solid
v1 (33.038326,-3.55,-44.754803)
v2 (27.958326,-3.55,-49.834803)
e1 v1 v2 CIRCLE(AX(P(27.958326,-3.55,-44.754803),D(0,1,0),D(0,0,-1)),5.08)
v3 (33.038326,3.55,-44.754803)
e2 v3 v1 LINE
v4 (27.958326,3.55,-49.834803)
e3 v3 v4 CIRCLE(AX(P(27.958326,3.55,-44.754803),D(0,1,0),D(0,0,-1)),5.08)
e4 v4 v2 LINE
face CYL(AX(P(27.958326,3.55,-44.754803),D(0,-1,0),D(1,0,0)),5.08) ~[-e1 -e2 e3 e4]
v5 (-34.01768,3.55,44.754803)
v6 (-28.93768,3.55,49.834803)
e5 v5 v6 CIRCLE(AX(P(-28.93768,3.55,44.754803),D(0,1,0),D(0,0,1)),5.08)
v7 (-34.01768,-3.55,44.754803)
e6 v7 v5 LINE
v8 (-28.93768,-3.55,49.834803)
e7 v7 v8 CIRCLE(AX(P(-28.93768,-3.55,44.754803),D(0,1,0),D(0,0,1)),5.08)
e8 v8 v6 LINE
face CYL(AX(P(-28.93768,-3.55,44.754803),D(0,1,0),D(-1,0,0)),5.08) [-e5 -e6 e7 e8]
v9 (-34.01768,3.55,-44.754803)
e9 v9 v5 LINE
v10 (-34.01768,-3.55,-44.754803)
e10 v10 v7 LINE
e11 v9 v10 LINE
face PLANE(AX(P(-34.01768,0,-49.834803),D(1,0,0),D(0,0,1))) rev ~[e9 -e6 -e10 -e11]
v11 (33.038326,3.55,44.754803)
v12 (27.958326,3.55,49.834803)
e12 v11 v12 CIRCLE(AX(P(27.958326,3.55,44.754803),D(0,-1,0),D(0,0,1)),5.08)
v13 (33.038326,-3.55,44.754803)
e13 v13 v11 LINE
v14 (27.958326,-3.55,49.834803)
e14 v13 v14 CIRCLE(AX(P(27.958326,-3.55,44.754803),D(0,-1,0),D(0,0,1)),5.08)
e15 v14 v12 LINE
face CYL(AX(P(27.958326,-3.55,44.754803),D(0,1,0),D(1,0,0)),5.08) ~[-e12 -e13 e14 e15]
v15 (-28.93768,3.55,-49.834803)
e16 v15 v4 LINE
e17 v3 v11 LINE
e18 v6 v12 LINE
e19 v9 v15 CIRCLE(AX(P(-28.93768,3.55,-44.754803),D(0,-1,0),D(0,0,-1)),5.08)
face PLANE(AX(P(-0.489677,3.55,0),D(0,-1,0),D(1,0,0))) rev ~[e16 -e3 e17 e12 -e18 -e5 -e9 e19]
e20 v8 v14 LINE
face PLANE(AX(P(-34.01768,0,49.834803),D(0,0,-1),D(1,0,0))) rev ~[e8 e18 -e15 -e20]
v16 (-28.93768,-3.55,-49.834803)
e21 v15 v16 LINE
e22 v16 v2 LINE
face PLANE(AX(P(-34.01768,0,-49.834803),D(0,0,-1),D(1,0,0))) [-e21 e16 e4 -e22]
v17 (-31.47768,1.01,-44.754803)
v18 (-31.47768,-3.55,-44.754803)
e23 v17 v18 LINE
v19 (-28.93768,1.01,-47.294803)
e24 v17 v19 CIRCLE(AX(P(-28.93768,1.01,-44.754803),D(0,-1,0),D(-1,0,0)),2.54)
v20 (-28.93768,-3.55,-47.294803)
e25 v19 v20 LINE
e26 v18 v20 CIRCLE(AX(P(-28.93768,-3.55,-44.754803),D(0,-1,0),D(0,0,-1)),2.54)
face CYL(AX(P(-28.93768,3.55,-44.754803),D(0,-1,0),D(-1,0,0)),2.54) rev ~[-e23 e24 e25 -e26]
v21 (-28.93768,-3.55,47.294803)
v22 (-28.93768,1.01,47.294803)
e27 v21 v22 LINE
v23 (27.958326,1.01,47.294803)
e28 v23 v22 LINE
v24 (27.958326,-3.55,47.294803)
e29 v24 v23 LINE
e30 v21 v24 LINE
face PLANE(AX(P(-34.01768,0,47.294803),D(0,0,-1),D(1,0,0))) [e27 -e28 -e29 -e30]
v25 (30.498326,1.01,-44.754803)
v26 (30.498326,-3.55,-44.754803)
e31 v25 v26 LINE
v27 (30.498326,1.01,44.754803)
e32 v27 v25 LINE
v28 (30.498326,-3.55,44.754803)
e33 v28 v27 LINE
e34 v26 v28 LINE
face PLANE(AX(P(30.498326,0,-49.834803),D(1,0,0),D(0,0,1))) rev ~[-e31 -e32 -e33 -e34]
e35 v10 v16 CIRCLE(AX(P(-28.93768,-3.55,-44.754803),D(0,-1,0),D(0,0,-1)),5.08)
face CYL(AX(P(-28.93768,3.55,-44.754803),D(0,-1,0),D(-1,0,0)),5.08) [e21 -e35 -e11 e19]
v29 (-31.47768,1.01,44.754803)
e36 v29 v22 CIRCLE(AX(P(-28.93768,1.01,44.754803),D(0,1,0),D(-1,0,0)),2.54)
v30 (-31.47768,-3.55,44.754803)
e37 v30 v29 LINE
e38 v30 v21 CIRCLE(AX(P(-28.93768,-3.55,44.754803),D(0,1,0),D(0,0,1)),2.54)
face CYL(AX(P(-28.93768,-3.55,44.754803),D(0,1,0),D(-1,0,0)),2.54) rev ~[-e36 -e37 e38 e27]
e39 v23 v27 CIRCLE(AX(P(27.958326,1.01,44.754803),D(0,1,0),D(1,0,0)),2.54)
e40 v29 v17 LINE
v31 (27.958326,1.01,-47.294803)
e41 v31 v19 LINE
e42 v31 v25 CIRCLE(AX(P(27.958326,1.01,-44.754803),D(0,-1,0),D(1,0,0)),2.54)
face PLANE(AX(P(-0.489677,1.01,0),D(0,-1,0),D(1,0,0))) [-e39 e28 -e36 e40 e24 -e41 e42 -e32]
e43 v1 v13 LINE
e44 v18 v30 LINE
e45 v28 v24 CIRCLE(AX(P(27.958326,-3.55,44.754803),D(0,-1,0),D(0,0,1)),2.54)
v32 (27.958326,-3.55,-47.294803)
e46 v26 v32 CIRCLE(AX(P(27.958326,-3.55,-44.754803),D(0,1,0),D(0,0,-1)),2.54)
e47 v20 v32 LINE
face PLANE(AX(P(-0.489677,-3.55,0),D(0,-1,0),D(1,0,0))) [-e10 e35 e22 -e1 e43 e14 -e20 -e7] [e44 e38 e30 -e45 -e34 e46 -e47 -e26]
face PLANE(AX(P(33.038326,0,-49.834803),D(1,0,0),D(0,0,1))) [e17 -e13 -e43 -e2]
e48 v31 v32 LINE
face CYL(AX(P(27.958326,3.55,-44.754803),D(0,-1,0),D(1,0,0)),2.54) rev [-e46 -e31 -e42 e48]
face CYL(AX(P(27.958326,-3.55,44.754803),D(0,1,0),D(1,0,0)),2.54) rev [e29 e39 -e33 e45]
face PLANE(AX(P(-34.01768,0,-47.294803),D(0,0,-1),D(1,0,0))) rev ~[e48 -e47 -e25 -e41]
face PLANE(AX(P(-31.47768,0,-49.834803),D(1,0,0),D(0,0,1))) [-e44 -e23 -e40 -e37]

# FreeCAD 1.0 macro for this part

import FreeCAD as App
import Part
import Sketcher

V = App.Vector
Q = App.Units.Quantity


def edges_at(feature, points):
    """Names of the edges that pass closest to the given points."""
    edges = feature.Shape.Edges
    near = lambda p: min(range(len(edges)), key=lambda i: edges[i].distToShape(Part.Vertex(*p))[0])
    return sorted({f"Edge{near(p) + 1}" for p in points})


def faces_at(feature, points):
    """Names of the faces that lie closest to the given points."""
    faces = feature.Shape.Faces
    near = lambda p: min(range(len(faces)), key=lambda i: faces[i].distToShape(Part.Vertex(*p))[0])
    return sorted({f"Face{near(p) + 1}" for p in points})


def add_polygon(sketch, points):
    """Adds a closed chain of lines whose ends are joined by coincident constraints."""
    first, n = sketch.GeometryCount, len(points)
    for a, b in zip(points, points[1:] + points[:1]):
        sketch.addGeometry(Part.LineSegment(App.Vector(*a, 0), App.Vector(*b, 0)), False)
    for i in range(n):
        sketch.addConstraint(Sketcher.Constraint("Coincident", first + i, 2, first + (i + 1) % n, 1))

doc = App.newDocument("Part")
params = doc.addObject("Spreadsheet::Sheet", "Params")
for row, (alias, value) in enumerate([
    ("pad1_length", "7.1 mm"),
    ("fillet_radius", "0.2 in"),
    ("thickness_wall", "0.1 in"),
], start=1):
    params.set(f"A{row}", alias)
    params.set(f"B{row}", "=" + value)
    params.setAlias(f"B{row}", alias)

body = doc.addObject("PartDesign::Body", "Body")

# Sketch on XZ plane
sketch1 = doc.addObject("Sketcher::SketchObject", "Sketch")
body.addObject(sketch1)
sketch1.AttachmentSupport = (doc.XZ_Plane, [""])
sketch1.MapMode = "FlatFace"
add_polygon(sketch1, [(-34.01768, 49.834803), (-34.01768, -49.834803), (33.038326, -49.834803), (33.038326, 49.834803)])  # lines 0-3
sketch1.addConstraint(Sketcher.Constraint("Vertical", 0))
sketch1.addConstraint(Sketcher.Constraint("Horizontal", 1))
sketch1.addConstraint(Sketcher.Constraint("Vertical", 2))
sketch1.addConstraint(Sketcher.Constraint("Horizontal", 3))
sketch1.addConstraint(Sketcher.Constraint("DistanceY", 0, 2, -1, 1, Q("1.9620001 in")))
sketch1.addConstraint(Sketcher.Constraint("DistanceY", -1, 1, 2, 2, Q("1.9620001 in")))
sketch1.addConstraint(Sketcher.Constraint("DistanceX", 1, 1, 1, 2, Q("67.056006 mm")))
sketch1.addConstraint(Sketcher.Constraint("DistanceX", 0, 2, -1, 1, Q("34.01768 mm")))
pad1 = doc.addObject("PartDesign::Pad", "Pad")
body.addObject(pad1)
pad1.Profile = sketch1
pad1.setExpression("Length", "Params.pad1_length")
pad1.Midplane = True
doc.recompute()

fillet = doc.addObject("PartDesign::Fillet", "Fillet")
body.addObject(fillet)
fillet.Base = (pad1, edges_at(pad1, [
    (-34.018, 0, -49.835),
    (-34.018, 0, 49.835),
    (33.038, 0, -49.835),
    (33.038, 0, 49.835),
]))
fillet.setExpression("Radius", "Params.fillet_radius")
doc.recompute()

thickness = doc.addObject("PartDesign::Thickness", "Thickness")
body.addObject(thickness)
thickness.Base = (fillet, faces_at(fillet, [(-0.49, -3.55, 0)]))
thickness.setExpression("Value", "Params.thickness_wall")
thickness.Reversed = True
thickness.Join = "Arc"

doc.recompute()
